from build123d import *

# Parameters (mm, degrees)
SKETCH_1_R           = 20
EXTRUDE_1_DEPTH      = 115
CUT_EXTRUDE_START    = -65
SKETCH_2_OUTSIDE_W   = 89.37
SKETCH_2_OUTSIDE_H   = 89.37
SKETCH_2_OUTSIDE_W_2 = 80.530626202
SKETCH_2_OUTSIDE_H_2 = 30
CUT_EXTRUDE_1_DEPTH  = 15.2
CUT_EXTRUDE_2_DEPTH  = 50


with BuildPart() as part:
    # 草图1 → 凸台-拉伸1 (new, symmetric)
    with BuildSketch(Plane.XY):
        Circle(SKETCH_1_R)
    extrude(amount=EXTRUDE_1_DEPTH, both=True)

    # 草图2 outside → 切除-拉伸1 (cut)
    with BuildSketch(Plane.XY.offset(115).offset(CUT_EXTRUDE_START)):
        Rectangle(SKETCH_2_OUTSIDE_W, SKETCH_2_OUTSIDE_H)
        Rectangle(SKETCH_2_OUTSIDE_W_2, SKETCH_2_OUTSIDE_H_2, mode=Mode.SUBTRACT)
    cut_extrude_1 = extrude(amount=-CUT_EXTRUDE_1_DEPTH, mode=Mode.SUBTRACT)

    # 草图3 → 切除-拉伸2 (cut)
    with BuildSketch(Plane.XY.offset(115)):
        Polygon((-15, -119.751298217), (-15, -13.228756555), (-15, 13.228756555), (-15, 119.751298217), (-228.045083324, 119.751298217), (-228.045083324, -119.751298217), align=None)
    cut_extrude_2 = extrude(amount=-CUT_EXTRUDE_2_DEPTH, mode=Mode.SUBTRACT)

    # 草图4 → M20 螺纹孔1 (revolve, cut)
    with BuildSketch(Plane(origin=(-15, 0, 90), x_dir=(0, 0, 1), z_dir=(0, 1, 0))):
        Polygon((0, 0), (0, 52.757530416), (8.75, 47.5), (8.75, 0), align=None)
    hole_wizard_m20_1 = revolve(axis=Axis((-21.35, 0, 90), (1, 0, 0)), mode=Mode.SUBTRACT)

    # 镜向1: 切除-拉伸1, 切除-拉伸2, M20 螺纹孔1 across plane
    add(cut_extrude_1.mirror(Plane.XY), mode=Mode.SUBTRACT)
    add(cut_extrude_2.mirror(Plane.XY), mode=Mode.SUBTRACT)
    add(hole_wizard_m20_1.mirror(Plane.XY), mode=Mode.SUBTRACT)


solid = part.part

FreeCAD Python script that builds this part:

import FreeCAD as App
import Part
import Sketcher
from FreeCAD import Vector
Q = App.Units.Quantity

doc = App.newDocument("Part")
body = doc.addObject("PartDesign::Body", "Body")

sketch1 = body.newObject("Sketcher::SketchObject", "Sketch")
sketch1.AttachmentSupport = (doc.getObject("XY_Plane"), [""])
sketch1.MapMode = "FlatFace"
sketch1.addGeometry(Part.Circle(Vector(0, 0, 0), Vector(0, 0, 1), 20), False)
sketch1.addConstraint(Sketcher.Constraint("Coincident", 0, 3, -1, 1))
sketch1.addConstraint(Sketcher.Constraint("Diameter", 0, Q("40 mm")))
pad1 = body.newObject("PartDesign::Pad", "Pad")
pad1.Profile = sketch1
pad1.Length = 230
pad1.Midplane = True

sketch2 = body.newObject("Sketcher::SketchObject", "Sketch001")
sketch2.AttachmentSupport = (doc.getObject("XY_Plane"), [""])
sketch2.MapMode = "FlatFace"
sketch2.AttachmentOffset = App.Placement(Vector(0, 0, 50), App.Rotation())
sketch2.addGeometry(Part.LineSegment(Vector(-45, 45, 0), Vector(-45, -45, 0)), False)
sketch2.addGeometry(Part.LineSegment(Vector(-45, -45, 0), Vector(45, -45, 0)), False)
sketch2.addGeometry(Part.LineSegment(Vector(45, -45, 0), Vector(45, 45, 0)), False)
sketch2.addGeometry(Part.LineSegment(Vector(45, 45, 0), Vector(-45, 45, 0)), False)
sketch2.addGeometry(Part.LineSegment(Vector(40, -15, 0), Vector(-40, -15, 0)), False)
sketch2.addGeometry(Part.LineSegment(Vector(-40, -15, 0), Vector(-40, 15, 0)), False)
sketch2.addGeometry(Part.LineSegment(Vector(-40, 15, 0), Vector(40, 15, 0)), False)
sketch2.addGeometry(Part.LineSegment(Vector(40, 15, 0), Vector(40, -15, 0)), False)
sketch2.addConstraint(Sketcher.Constraint("Coincident", 0, 2, 1, 1))
sketch2.addConstraint(Sketcher.Constraint("Coincident", 1, 2, 2, 1))
sketch2.addConstraint(Sketcher.Constraint("Coincident", 2, 2, 3, 1))
sketch2.addConstraint(Sketcher.Constraint("Coincident", 3, 2, 0, 1))
sketch2.addConstraint(Sketcher.Constraint("Coincident", 4, 2, 5, 1))
sketch2.addConstraint(Sketcher.Constraint("Coincident", 5, 2, 6, 1))
sketch2.addConstraint(Sketcher.Constraint("Coincident", 6, 2, 7, 1))
sketch2.addConstraint(Sketcher.Constraint("Coincident", 7, 2, 4, 1))
sketch2.addConstraint(Sketcher.Constraint("Vertical", 0))
sketch2.addConstraint(Sketcher.Constraint("Horizontal", 1))
sketch2.addConstraint(Sketcher.Constraint("Vertical", 2))
sketch2.addConstraint(Sketcher.Constraint("Horizontal", 3))
sketch2.addConstraint(Sketcher.Constraint("Horizontal", 4))
sketch2.addConstraint(Sketcher.Constraint("Vertical", 5))
sketch2.addConstraint(Sketcher.Constraint("Horizontal", 6))
sketch2.addConstraint(Sketcher.Constraint("Vertical", 7))
sketch2.addConstraint(Sketcher.Constraint("Symmetric", 0, 2, 2, 2, -1, 1))
sketch2.addConstraint(Sketcher.Constraint("Symmetric", 4, 2, 6, 2, -1, 1))
sketch2.addConstraint(Sketcher.Constraint("Equal", 3, 0))
sketch2.addConstraint(Sketcher.Constraint("DistanceY", 5, 1, 5, 2, Q("30 mm")))
sketch2.addConstraint(Sketcher.Constraint("DistanceX", 1, 1, 1, 2, Q("89.37 mm")))
sketch2.addConstraint(Sketcher.Constraint("DistanceX", 4, 2, 4, 1, Q("80.530626 mm")))
pocket1 = body.newObject("PartDesign::Pocket", "Pocket")
pocket1.Profile = sketch2
pocket1.Length = 15.2

sketch3 = body.newObject("Sketcher::SketchObject", "Sketch002")
sketch3.AttachmentSupport = (doc.getObject("XY_Plane"), [""])
sketch3.MapMode = "FlatFace"
sketch3.AttachmentOffset = App.Placement(Vector(0, 0, 115), App.Rotation())
sketch3.addGeometry(Part.LineSegment(Vector(-15, -120, 0), Vector(-15, 120, 0)), False)
sketch3.addGeometry(Part.LineSegment(Vector(-15, 120, 0), Vector(-228, 120, 0)), False)
sketch3.addGeometry(Part.LineSegment(Vector(-228, 120, 0), Vector(-228, -120, 0)), False)
sketch3.addGeometry(Part.LineSegment(Vector(-228, -120, 0), Vector(-15, -120, 0)), False)
sketch3.addConstraint(Sketcher.Constraint("Coincident", 0, 2, 1, 1))
sketch3.addConstraint(Sketcher.Constraint("Coincident", 1, 2, 2, 1))
sketch3.addConstraint(Sketcher.Constraint("Coincident", 2, 2, 3, 1))
sketch3.addConstraint(Sketcher.Constraint("Coincident", 3, 2, 0, 1))
sketch3.addConstraint(Sketcher.Constraint("Vertical", 0))
sketch3.addConstraint(Sketcher.Constraint("Horizontal", 1))
sketch3.addConstraint(Sketcher.Constraint("Vertical", 2))
sketch3.addConstraint(Sketcher.Constraint("Horizontal", 3))
sketch3.addConstraint(Sketcher.Constraint("DistanceX", 0, 2, -1, 1, Q("15 mm")))
sketch3.addConstraint(Sketcher.Constraint("DistanceY", -1, 1, 0, 2, Q("119.751298 mm")))
sketch3.addConstraint(Sketcher.Constraint("DistanceY", 2, 2, -1, 1, Q("119.751298 mm")))
sketch3.addConstraint(Sketcher.Constraint("DistanceX", 1, 2, 1, 1, Q("213.045083 mm")))
pocket2 = body.newObject("PartDesign::Pocket", "Pocket001")
pocket2.Profile = sketch3
pocket2.Length = 50

sketch4 = body.newObject("Sketcher::SketchObject", "Sketch003")
sketch4.AttachmentSupport = (doc.getObject("XZ_Plane"), [""])
sketch4.MapMode = "FlatFace"
sketch4.addGeometry(Part.LineSegment(Vector(38, 90, 0), Vector(-15, 90, 0)), False)
sketch4.addGeometry(Part.LineSegment(Vector(-15, 90, 0), Vector(-15, 99, 0)), False)
sketch4.addGeometry(Part.LineSegment(Vector(-15, 99, 0), Vector(32, 99, 0)), False)
sketch4.addGeometry(Part.LineSegment(Vector(32, 99, 0), Vector(38, 90, 0)), False)
sketch4.addGeometry(Part.LineSegment(Vector(-15, 90, 0), Vector(38, 90, 0)), True)
sketch4.addConstraint(Sketcher.Constraint("Coincident", 0, 2, 1, 1))
sketch4.addConstraint(Sketcher.Constraint("Coincident", 1, 2, 2, 1))
sketch4.addConstraint(Sketcher.Constraint("Coincident", 2, 2, 3, 1))
sketch4.addConstraint(Sketcher.Constraint("Coincident", 3, 2, 0, 1))
sketch4.addConstraint(Sketcher.Constraint("Horizontal", 0))
sketch4.addConstraint(Sketcher.Constraint("Vertical", 1))
sketch4.addConstraint(Sketcher.Constraint("Horizontal", 2))
sketch4.addConstraint(Sketcher.Constraint("Horizontal", 4))
sketch4.addConstraint(Sketcher.Constraint("Coincident", 4, 1, 0, 2))
sketch4.addConstraint(Sketcher.Constraint("Equal", 0, 4))
sketch4.addConstraint(Sketcher.Constraint("Angle", 3, Q("-59 deg")))
sketch4.addConstraint(Sketcher.Constraint("DistanceX", 2, 1, 2, 2, Q("47.5 mm")))
sketch4.addConstraint(Sketcher.Constraint("DistanceX", 0, 2, -1, 1, Q("15 mm")))
sketch4.addConstraint(Sketcher.Constraint("DistanceY", -1, 1, 0, 2, Q("90 mm")))
sketch4.addConstraint(Sketcher.Constraint("DistanceY", 1, 1, 1, 2, Q("8.75 mm")))
groove = body.newObject("PartDesign::Groove", "Groove")
groove.Profile = sketch4
groove.ReferenceAxis = (sketch4, ["Axis0"])
groove.Angle = 360
doc.recompute()

mirrored = body.newObject("PartDesign::Mirrored", "Mirrored")
mirrored.Originals = [pocket1, pocket2, groove]
mirrored.MirrorPlane = (doc.getObject("XY_Plane"), [""])
body.Tip = mirrored

doc.recompute()
